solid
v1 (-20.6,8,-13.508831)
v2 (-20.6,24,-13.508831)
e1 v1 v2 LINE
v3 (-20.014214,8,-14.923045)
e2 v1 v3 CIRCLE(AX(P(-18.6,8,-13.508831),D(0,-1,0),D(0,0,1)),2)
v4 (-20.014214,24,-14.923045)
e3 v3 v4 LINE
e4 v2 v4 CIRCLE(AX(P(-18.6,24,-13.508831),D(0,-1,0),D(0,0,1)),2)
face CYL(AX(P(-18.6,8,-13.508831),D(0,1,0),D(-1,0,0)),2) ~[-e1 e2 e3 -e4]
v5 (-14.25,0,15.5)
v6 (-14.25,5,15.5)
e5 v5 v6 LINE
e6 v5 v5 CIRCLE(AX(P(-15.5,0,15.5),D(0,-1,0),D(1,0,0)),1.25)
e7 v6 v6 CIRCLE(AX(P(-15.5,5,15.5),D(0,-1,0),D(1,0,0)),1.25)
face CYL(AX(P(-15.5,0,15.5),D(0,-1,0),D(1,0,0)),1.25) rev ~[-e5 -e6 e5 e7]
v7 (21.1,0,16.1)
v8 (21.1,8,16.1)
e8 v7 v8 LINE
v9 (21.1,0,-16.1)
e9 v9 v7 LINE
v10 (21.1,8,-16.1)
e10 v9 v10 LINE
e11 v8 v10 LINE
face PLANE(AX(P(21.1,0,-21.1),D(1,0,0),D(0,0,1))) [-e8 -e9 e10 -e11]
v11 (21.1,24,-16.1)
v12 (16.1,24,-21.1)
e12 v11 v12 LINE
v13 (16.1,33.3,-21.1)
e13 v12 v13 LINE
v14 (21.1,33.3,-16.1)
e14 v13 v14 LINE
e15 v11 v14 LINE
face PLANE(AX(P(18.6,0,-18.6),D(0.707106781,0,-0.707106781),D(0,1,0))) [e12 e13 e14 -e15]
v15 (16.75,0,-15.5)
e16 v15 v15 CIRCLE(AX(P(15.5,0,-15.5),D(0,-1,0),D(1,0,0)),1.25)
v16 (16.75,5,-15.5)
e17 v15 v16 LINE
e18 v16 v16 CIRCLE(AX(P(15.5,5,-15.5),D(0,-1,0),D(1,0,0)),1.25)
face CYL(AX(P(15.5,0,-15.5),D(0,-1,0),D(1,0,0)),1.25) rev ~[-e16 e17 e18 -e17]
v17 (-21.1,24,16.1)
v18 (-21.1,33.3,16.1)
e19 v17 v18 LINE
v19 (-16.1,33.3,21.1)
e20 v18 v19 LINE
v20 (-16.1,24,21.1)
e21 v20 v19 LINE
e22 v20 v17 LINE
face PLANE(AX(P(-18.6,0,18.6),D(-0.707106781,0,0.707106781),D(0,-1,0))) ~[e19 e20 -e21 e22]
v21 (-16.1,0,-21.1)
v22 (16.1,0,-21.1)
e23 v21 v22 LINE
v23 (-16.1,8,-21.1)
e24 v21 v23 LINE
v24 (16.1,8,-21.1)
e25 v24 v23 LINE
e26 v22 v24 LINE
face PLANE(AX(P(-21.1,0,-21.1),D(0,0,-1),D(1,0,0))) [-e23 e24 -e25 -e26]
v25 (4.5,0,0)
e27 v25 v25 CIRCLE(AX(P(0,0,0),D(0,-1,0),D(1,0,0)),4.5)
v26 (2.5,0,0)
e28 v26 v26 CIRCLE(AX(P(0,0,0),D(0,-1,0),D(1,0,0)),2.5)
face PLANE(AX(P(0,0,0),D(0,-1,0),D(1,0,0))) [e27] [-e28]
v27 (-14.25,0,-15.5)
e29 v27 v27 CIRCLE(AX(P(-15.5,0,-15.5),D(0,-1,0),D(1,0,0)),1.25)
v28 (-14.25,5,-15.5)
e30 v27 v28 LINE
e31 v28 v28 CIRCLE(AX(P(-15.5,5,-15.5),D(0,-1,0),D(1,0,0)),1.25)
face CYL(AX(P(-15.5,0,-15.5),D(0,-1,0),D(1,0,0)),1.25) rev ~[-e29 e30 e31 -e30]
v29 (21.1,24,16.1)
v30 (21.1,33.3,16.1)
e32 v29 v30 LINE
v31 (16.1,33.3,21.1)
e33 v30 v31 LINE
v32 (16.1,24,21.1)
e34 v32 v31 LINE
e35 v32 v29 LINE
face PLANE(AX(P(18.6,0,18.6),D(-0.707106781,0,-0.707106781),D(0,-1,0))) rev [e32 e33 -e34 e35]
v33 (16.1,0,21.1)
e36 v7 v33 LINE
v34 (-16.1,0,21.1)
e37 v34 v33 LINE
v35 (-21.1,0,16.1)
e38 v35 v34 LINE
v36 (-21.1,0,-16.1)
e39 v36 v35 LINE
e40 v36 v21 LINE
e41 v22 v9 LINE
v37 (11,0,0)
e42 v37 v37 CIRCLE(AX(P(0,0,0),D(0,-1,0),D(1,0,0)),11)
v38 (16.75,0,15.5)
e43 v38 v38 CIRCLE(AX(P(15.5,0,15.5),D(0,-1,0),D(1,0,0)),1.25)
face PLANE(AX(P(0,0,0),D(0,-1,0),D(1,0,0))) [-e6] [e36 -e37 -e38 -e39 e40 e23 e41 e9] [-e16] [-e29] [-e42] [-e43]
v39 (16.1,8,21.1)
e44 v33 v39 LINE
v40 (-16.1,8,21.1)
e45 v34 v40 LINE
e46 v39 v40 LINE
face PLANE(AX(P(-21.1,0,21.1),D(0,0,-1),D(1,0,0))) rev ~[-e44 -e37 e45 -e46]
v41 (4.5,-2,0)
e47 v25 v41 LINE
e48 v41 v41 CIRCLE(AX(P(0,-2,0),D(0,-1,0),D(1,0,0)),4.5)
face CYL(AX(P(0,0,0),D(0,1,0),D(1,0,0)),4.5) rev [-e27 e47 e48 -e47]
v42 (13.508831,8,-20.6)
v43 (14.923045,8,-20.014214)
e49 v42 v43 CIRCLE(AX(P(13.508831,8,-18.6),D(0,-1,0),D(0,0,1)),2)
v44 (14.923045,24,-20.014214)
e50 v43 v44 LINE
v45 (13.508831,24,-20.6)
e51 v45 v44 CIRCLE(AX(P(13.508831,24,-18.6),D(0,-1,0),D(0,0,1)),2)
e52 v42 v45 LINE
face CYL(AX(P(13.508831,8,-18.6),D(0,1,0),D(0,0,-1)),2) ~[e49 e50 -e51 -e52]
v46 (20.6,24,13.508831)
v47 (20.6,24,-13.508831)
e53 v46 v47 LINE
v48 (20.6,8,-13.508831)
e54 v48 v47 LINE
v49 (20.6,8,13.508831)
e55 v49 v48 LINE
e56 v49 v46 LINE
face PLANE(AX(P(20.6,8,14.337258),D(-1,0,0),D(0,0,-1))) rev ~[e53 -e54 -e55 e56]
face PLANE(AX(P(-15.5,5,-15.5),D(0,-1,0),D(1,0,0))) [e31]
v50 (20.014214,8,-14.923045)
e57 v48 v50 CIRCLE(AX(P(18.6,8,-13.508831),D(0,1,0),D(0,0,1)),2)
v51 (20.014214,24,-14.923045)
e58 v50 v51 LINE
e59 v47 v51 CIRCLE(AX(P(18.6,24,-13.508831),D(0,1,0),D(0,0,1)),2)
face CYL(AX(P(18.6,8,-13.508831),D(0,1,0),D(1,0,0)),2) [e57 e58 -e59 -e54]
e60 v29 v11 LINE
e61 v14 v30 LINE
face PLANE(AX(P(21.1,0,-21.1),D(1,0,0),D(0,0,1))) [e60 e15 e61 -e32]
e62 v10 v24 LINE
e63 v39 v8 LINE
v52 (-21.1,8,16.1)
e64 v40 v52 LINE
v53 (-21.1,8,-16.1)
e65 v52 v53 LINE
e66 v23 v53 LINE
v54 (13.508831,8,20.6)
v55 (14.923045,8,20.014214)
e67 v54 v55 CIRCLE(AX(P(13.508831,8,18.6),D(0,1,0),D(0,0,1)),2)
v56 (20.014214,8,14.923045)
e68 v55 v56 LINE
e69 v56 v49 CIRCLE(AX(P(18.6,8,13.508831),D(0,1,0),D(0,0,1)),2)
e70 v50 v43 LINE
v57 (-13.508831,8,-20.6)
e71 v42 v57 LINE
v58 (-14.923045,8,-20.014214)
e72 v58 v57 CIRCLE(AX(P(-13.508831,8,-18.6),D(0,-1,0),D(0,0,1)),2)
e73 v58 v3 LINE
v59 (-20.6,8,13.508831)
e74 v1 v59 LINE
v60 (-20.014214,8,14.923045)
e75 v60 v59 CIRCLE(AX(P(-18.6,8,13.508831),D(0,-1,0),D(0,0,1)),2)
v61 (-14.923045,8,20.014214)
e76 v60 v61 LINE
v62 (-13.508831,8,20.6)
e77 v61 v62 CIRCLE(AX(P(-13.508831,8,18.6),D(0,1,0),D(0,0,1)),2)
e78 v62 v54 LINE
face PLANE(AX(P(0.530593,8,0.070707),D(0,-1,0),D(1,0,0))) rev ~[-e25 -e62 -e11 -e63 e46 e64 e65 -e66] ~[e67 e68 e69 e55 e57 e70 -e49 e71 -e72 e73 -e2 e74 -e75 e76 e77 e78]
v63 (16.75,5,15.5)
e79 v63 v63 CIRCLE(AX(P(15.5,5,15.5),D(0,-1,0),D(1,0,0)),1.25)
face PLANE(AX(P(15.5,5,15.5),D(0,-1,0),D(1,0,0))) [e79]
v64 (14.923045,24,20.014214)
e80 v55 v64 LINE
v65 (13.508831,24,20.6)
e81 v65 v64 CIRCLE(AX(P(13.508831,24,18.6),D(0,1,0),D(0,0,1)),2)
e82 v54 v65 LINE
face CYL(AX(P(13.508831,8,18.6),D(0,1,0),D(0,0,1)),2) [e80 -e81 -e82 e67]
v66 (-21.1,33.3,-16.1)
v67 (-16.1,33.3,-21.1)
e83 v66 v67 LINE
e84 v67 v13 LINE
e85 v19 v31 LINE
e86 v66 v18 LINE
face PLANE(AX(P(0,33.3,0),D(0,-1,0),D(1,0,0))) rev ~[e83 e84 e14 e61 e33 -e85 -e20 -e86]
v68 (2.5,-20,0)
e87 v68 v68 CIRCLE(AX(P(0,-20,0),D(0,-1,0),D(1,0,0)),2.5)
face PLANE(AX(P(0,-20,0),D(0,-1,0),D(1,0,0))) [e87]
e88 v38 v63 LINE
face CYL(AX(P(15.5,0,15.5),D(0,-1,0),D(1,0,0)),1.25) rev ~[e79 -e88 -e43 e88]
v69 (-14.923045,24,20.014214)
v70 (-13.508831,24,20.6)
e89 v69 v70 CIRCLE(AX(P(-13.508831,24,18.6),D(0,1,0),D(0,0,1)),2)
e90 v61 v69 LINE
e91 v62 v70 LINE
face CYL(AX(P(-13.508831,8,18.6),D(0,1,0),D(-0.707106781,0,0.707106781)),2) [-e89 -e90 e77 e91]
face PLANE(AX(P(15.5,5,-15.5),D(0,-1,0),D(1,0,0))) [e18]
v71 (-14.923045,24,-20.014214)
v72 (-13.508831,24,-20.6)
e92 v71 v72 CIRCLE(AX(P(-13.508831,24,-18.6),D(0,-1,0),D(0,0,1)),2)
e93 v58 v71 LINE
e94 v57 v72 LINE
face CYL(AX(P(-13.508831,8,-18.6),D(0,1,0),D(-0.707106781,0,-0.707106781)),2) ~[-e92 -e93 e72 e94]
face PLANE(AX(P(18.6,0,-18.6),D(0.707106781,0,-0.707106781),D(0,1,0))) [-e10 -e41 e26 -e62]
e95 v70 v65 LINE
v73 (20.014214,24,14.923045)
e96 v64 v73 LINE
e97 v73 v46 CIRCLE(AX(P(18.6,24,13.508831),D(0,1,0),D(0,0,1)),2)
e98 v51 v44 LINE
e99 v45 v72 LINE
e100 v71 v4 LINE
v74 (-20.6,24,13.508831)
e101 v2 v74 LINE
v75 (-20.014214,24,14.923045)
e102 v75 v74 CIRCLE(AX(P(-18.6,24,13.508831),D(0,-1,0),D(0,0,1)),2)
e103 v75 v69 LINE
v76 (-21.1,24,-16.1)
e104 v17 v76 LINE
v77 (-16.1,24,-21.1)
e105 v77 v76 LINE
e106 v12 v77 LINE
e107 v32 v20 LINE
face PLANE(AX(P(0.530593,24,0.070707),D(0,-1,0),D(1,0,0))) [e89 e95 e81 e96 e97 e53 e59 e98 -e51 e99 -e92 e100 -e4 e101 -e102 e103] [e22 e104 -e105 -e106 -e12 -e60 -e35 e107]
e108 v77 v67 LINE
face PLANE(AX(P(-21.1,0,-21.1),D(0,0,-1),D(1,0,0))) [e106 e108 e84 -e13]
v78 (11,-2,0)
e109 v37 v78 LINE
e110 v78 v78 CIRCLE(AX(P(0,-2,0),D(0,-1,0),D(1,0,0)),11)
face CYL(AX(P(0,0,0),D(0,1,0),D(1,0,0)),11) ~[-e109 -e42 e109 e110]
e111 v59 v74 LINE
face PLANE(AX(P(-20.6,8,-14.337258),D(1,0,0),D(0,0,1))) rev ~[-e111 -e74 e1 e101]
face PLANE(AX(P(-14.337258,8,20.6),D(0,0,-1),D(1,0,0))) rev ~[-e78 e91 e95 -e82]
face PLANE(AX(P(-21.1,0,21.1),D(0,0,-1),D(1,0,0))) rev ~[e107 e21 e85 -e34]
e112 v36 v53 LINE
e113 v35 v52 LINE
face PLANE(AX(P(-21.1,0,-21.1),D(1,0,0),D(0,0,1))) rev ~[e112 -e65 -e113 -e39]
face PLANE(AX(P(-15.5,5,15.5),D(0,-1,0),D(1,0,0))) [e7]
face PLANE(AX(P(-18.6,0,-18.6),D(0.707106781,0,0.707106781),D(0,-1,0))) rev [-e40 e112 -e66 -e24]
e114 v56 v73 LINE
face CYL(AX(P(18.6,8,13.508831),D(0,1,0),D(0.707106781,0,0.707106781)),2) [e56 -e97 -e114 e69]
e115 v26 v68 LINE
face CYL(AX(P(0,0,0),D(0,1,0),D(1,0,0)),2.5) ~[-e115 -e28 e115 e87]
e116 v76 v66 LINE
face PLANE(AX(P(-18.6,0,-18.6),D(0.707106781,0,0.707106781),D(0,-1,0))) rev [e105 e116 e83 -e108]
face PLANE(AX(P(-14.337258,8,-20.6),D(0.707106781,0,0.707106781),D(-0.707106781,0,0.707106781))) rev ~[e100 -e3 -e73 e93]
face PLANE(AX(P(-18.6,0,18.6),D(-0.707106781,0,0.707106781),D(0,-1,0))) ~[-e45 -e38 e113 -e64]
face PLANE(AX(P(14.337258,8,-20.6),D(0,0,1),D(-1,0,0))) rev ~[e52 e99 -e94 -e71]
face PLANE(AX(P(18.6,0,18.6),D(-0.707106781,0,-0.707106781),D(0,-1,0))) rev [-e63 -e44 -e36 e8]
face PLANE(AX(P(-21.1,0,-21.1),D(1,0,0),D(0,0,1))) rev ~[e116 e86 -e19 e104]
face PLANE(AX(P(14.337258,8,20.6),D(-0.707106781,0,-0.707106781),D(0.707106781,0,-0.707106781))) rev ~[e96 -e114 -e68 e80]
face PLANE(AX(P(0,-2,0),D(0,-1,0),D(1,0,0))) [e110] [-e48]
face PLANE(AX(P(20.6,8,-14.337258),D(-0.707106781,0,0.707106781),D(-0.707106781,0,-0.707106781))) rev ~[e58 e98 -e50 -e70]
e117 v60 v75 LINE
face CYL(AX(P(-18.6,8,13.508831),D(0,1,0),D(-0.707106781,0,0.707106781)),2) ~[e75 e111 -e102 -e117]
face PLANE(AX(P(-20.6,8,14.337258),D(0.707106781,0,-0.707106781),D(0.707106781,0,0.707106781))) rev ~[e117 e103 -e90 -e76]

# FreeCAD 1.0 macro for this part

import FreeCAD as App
import Part
import Sketcher
from FreeCAD import Vector
Q = App.Units.Quantity


def edges_at(feature, points):
    """Names of the edges that pass closest to the given points."""
    edges = feature.Shape.Edges
    near = lambda p: min(range(len(edges)), key=lambda i: edges[i].distToShape(Part.Vertex(*p))[0])
    return sorted({f"Edge{near(p) + 1}" for p in points})

doc = App.newDocument("Part")
body = doc.addObject("PartDesign::Body", "Body")

# Sketch on XZ plane
sketch1 = doc.addObject("Sketcher::SketchObject", "Sketch")
body.addObject(sketch1)
sketch1.AttachmentSupport = (doc.XZ_Plane, [""])
sketch1.MapMode = "FlatFace"
sketch1.addGeometry([
    Part.LineSegment(Vector(-21, 21, 0), Vector(-21, -21, 0)),
    Part.LineSegment(Vector(-21, -21, 0), Vector(21, -21, 0)),
    Part.LineSegment(Vector(21, -21, 0), Vector(21, 21, 0)),
    Part.LineSegment(Vector(21, 21, 0), Vector(-21, 21, 0)),
], False)
sketch1.addConstraint([
    Sketcher.Constraint("Coincident", 0, 2, 1, 1),
    Sketcher.Constraint("Coincident", 1, 2, 2, 1),
    Sketcher.Constraint("Coincident", 2, 2, 3, 1),
    Sketcher.Constraint("Coincident", 3, 2, 0, 1),
    Sketcher.Constraint("Vertical", 0),
    Sketcher.Constraint("Horizontal", 1),
    Sketcher.Constraint("Vertical", 2),
    Sketcher.Constraint("Horizontal", 3),
    Sketcher.Constraint("Symmetric", 0, 2, 2, 2, -1, 1),
    Sketcher.Constraint("Equal", 3, 0),
    Sketcher.Constraint("DistanceX", 1, 1, 1, 2, Q("42.2 mm")),
])
pad1 = doc.addObject("PartDesign::Pad", "Pad")
body.addObject(pad1)
pad1.Profile = sketch1
pad1.Length = 33.3
pad1.Reversed = True
doc.recompute()

chamfer = doc.addObject("PartDesign::Chamfer", "Chamfer")
body.addObject(chamfer)
chamfer.Base = (pad1, edges_at(pad1, [
    (21.1, 16.65, 21.1),
    (-21.1, 16.65, 21.1),
    (21.1, 16.65, -21.1),
    (-21.1, 16.65, -21.1),
]))
chamfer.Size = 5

# Sketch on XZ plane
sketch2 = doc.addObject("Sketcher::SketchObject", "Sketch001")
body.addObject(sketch2)
sketch2.AttachmentSupport = (doc.XZ_Plane, [""])
sketch2.MapMode = "FlatFace"
sketch2.addGeometry(Part.Circle(Vector(0, 0, 0), Vector(0, 0, 1), 2.5), False)
sketch2.addConstraint([
    Sketcher.Constraint("Coincident", 0, 3, -1, 1),
    Sketcher.Constraint("Diameter", 0, Q("5 mm")),
])
pad2 = doc.addObject("PartDesign::Pad", "Pad001")
body.addObject(pad2)
pad2.Profile = sketch2
pad2.Length = 20

# Sketch on XZ plane
sketch3 = doc.addObject("Sketcher::SketchObject", "Sketch002")
body.addObject(sketch3)
sketch3.AttachmentSupport = (doc.XZ_Plane, [""])
sketch3.MapMode = "FlatFace"
sketch3.addGeometry([
    Part.Circle(Vector(0, 0, 0), Vector(0, 0, 1), 11),
    Part.Circle(Vector(0, 0, 0), Vector(0, 0, 1), 4.5),
], False)
sketch3.addConstraint([
    Sketcher.Constraint("Coincident", 0, 3, -1, 1),
    Sketcher.Constraint("Coincident", 1, 3, -1, 1),
    Sketcher.Constraint("Diameter", 0, Q("22 mm")),
    Sketcher.Constraint("Diameter", 1, Q("9 mm")),
])
pad3 = doc.addObject("PartDesign::Pad", "Pad002")
body.addObject(pad3)
pad3.Profile = sketch3
pad3.Length = 2

# Sketch on XZ plane
sketch4 = doc.addObject("Sketcher::SketchObject", "Sketch003")
body.addObject(sketch4)
sketch4.AttachmentSupport = (doc.XZ_Plane, [""])
sketch4.MapMode = "FlatFace"
sketch4.addGeometry([
    Part.Circle(Vector(-15.5, 15.5, 0), Vector(0, 0, 1), 1.2),
    Part.Circle(Vector(-15.5, -15.5, 0), Vector(0, 0, 1), 1.2),
    Part.Circle(Vector(15.5, -15.5, 0), Vector(0, 0, 1), 1.2),
    Part.Circle(Vector(15.5, 15.5, 0), Vector(0, 0, 1), 1.2),
], False)
sketch4.addConstraint([
    Sketcher.Constraint("Equal", 0, 1),
    Sketcher.Constraint("Equal", 1, 2),
    Sketcher.Constraint("Equal", 2, 3),
    Sketcher.Constraint("Symmetric", 0, 3, 2, 3, -1, 1),
    Sketcher.Constraint("Symmetric", 1, 3, 3, 3, -1, 1),
    Sketcher.Constraint("Symmetric", 1, 3, 2, 3, -2),
    Sketcher.Constraint("Diameter", 0, Q("2.5 mm")),
    Sketcher.Constraint("DistanceY", 1, 3, 0, 3, Q("31 mm")),
    Sketcher.Constraint("DistanceX", 1, 3, 2, 3, Q("31 mm")),
])
pocket1 = doc.addObject("PartDesign::Pocket", "Pocket")
body.addObject(pocket1)
pocket1.Profile = sketch4
pocket1.Length = 5

# Sketch on XZ plane
sketch5 = doc.addObject("Sketcher::SketchObject", "Sketch004")
body.addObject(sketch5)
sketch5.AttachmentSupport = (doc.XZ_Plane, [""])
sketch5.MapMode = "FlatFace"
sketch5.AttachmentOffset = App.Placement(Vector(0, 0, -8), App.Rotation())
sketch5.addGeometry([
    Part.LineSegment(Vector(-25, 25, 0), Vector(-25, -25, 0)),  # 0
    Part.LineSegment(Vector(-25, -25, 0), Vector(26, -25, 0)),  # 1
    Part.LineSegment(Vector(26, -25, 0), Vector(26, 25, 0)),  # 2
    Part.LineSegment(Vector(26, 25, 0), Vector(-25, 25, 0)),  # 3
    Part.LineSegment(Vector(-21, 14, 0), Vector(-14, 21, 0)),  # 4
    Part.LineSegment(Vector(-14, 21, 0), Vector(14, 21, 0)),  # 5
    Part.LineSegment(Vector(14, 21, 0), Vector(21, 14, 0)),  # 6
    Part.LineSegment(Vector(21, 14, 0), Vector(21, -14, 0)),  # 7
    Part.LineSegment(Vector(21, -14, 0), Vector(14, -21, 0)),  # 8
    Part.LineSegment(Vector(14, -21, 0), Vector(-14, -21, 0)),  # 9
    Part.LineSegment(Vector(-14, -21, 0), Vector(-21, -14, 0)),  # 10
    Part.LineSegment(Vector(-21, -14, 0), Vector(-21, 14, 0)),  # 11
], False)
sketch5.addConstraint([
    Sketcher.Constraint("Coincident", 0, 2, 1, 1),
    Sketcher.Constraint("Coincident", 1, 2, 2, 1),
    Sketcher.Constraint("Coincident", 2, 2, 3, 1),
    Sketcher.Constraint("Coincident", 3, 2, 0, 1),
    Sketcher.Constraint("Coincident", 4, 2, 5, 1),
    Sketcher.Constraint("Coincident", 5, 2, 6, 1),
    Sketcher.Constraint("Coincident", 6, 2, 7, 1),
    Sketcher.Constraint("Coincident", 7, 2, 8, 1),
    Sketcher.Constraint("Coincident", 8, 2, 9, 1),
    Sketcher.Constraint("Coincident", 9, 2, 10, 1),
    Sketcher.Constraint("Coincident", 10, 2, 11, 1),
    Sketcher.Constraint("Coincident", 11, 2, 4, 1),
    Sketcher.Constraint("Vertical", 0),
    Sketcher.Constraint("Horizontal", 1),
    Sketcher.Constraint("Vertical", 2),
    Sketcher.Constraint("Horizontal", 3),
    Sketcher.Constraint("Horizontal", 5),
    Sketcher.Constraint("Vertical", 7),
    Sketcher.Constraint("Horizontal", 9),
    Sketcher.Constraint("Vertical", 11),
    Sketcher.Constraint("Symmetric", 4, 2, 8, 2, -1, 1),
    Sketcher.Constraint("Symmetric", 6, 2, 10, 2, -1, 1),
    Sketcher.Constraint("Perpendicular", 4, 6),
    Sketcher.Constraint("Perpendicular", 6, 8),
    Sketcher.Constraint("Perpendicular", 8, 10),
    Sketcher.Constraint("Horizontal", 7, 2, 10, 2),
    Sketcher.Constraint("Vertical", 5, 2, 8, 2),
    Sketcher.Constraint("Equal", 9, 7),
    Sketcher.Constraint("DistanceY", -1, 1, 4, 2, Q("20.6 mm")),
    Sketcher.Constraint("DistanceY", 0, 2, 0, 1, Q("50.195569 mm")),
    Sketcher.Constraint("DistanceX", -1, 1, 1, 2, Q("25.9088 mm")),
    Sketcher.Constraint("DistanceX", 1, 1, 1, 2, Q("50.756413 mm")),
    Sketcher.Constraint("DistanceX", 5, 1, 5, 2, Q("28.674517 mm")),
    Sketcher.Constraint("DistanceY", -1, 1, 2, 2, Q("25.168492 mm")),
])
pocket2 = doc.addObject("PartDesign::Pocket", "Pocket001")
body.addObject(pocket2)
pocket2.Profile = sketch5
pocket2.Length = 16
doc.recompute()

fillet = doc.addObject("PartDesign::Fillet", "Fillet")
body.addObject(fillet)
fillet.Base = (pocket2, edges_at(pocket2, [
    (20.6, 16, 14.337),
    (14.337, 16, 20.6),
    (-14.337, 16, 20.6),
    (-20.6, 16, 14.337),
    (-20.6, 16, -14.337),
    (-14.337, 16, -20.6),
    (20.6, 16, -14.337),
    (14.337, 16, -20.6),
]))
fillet.Radius = 2

doc.recompute()
